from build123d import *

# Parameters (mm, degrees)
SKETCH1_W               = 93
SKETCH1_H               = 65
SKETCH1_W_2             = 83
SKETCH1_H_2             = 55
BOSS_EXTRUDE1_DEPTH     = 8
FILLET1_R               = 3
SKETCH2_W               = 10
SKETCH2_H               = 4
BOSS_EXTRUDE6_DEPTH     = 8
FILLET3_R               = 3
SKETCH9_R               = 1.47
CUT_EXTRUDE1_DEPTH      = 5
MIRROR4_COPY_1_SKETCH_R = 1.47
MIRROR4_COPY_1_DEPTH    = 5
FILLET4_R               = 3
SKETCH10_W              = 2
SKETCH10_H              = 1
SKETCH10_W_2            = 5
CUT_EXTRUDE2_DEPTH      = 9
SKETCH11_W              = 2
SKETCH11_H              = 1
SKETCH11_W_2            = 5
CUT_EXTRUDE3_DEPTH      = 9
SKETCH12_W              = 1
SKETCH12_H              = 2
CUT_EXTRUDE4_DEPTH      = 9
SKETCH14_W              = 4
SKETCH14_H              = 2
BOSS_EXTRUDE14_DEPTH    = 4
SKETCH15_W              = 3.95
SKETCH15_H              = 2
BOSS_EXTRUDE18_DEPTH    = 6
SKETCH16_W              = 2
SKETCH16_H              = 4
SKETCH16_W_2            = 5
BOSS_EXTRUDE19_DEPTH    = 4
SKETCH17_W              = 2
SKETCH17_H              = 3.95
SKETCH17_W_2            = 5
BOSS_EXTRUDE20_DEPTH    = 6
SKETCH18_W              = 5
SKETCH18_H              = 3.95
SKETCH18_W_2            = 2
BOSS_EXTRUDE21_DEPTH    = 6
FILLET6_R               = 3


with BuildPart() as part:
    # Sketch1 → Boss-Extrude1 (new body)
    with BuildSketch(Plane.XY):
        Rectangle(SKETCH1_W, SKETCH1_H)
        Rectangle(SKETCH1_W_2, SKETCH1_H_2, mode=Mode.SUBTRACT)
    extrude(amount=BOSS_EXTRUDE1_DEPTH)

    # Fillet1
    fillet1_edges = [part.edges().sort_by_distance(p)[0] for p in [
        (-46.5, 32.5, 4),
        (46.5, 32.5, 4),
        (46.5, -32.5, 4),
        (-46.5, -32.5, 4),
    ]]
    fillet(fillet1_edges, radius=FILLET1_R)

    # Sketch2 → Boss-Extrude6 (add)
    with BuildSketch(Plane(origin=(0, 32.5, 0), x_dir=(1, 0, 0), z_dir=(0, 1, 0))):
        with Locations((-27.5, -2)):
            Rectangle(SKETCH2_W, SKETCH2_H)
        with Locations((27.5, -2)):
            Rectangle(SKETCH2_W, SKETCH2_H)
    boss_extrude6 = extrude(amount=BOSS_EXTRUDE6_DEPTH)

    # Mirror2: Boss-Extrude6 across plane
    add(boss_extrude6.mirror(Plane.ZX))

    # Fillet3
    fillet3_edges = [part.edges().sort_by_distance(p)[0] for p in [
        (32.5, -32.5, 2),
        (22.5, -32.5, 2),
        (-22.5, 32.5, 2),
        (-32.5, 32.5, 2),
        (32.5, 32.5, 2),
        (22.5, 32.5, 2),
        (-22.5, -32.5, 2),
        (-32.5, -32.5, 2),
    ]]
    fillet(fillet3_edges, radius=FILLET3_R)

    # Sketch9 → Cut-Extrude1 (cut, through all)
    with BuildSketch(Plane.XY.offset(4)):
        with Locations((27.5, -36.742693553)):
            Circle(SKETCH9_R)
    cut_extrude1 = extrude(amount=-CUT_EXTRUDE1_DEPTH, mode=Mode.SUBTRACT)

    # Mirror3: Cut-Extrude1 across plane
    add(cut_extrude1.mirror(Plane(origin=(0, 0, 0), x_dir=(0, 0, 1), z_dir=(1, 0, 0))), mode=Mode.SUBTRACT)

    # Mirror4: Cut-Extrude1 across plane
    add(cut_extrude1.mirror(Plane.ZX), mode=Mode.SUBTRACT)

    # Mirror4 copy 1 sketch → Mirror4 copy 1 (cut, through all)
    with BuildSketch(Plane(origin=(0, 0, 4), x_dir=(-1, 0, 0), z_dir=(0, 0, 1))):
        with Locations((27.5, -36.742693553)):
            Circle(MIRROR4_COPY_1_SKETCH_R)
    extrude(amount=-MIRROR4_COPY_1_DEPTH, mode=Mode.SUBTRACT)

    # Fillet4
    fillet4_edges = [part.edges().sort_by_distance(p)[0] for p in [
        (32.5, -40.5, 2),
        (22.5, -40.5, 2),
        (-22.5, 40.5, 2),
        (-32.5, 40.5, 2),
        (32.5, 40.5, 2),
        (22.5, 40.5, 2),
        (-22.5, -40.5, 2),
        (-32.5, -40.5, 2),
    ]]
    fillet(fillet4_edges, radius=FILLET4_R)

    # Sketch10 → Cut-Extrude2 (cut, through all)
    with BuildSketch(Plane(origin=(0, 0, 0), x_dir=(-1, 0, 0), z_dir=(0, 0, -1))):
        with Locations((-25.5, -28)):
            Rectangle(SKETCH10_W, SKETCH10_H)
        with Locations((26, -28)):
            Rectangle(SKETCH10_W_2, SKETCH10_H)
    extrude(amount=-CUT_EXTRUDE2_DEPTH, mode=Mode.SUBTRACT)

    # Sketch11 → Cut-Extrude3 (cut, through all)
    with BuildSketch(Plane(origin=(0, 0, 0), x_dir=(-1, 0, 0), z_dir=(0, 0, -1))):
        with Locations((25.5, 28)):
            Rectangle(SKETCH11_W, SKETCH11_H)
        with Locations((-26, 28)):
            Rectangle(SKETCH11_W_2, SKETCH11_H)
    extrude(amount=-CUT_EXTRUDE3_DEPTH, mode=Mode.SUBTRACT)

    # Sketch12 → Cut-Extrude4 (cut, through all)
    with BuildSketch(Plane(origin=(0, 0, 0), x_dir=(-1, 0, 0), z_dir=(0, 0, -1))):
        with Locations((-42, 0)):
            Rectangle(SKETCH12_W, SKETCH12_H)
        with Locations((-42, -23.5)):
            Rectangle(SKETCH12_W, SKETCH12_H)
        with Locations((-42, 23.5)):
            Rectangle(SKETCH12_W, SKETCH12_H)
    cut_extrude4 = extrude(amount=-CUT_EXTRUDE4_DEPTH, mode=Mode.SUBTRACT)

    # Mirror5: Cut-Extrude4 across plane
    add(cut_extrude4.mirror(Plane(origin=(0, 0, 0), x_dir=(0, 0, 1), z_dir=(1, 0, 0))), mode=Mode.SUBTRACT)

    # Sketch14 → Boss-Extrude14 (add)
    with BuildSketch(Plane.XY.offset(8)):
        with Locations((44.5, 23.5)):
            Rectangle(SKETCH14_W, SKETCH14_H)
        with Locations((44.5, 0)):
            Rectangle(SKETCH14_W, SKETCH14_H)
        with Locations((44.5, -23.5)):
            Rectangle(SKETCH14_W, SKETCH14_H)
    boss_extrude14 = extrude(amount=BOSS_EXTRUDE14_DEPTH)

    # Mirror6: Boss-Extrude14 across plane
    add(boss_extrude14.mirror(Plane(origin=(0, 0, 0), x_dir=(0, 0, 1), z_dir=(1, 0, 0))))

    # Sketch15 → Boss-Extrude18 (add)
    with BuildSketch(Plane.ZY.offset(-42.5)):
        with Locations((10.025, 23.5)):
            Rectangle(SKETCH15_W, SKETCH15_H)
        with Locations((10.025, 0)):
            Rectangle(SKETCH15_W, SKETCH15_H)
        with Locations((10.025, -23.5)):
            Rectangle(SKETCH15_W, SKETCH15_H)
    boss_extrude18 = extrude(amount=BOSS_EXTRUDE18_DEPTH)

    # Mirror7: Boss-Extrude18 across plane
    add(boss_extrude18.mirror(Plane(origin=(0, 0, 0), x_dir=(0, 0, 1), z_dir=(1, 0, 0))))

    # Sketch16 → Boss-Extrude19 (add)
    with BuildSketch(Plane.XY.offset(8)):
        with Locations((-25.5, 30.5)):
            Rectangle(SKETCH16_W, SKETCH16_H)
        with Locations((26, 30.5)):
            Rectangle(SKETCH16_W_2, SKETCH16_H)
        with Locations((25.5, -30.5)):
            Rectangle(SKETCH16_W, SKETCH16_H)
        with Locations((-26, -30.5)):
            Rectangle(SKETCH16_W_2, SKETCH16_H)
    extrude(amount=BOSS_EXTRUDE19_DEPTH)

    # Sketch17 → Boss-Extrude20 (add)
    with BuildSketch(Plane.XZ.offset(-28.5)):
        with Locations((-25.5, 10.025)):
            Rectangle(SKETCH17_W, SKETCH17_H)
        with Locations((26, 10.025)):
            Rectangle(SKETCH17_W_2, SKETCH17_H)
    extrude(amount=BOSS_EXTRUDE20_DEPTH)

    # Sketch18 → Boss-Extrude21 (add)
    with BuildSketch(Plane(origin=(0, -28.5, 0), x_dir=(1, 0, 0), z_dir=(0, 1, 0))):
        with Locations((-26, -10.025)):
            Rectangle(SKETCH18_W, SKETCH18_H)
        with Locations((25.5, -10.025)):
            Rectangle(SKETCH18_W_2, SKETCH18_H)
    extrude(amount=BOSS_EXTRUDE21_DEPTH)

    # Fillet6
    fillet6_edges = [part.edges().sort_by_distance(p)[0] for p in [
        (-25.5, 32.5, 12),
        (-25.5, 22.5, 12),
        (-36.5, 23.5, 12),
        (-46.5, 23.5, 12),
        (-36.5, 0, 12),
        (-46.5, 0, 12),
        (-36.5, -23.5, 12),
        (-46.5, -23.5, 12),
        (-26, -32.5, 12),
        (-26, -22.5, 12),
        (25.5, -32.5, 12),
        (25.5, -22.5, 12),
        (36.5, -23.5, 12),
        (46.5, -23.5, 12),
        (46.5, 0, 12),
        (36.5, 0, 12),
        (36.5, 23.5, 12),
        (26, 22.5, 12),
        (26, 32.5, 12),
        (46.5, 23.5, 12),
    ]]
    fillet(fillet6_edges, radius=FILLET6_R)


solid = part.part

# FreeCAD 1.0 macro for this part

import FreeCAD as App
import Part
import Sketcher
Q = App.Units.Quantity


def edges_at(feature, points):
    """Names of the edges that pass closest to the given points."""
    edges = feature.Shape.Edges
    near = lambda p: min(range(len(edges)), key=lambda i: edges[i].distToShape(Part.Vertex(*p))[0])
    return sorted({f"Edge{near(p) + 1}" for p in points})


def add_polygon(sketch, points):
    """Adds a closed chain of lines whose ends are joined by coincident constraints."""
    first, n = sketch.GeometryCount, len(points)
    for a, b in zip(points, points[1:] + points[:1]):
        sketch.addGeometry(Part.LineSegment(App.Vector(*a, 0), App.Vector(*b, 0)), False)
    for i in range(n):
        sketch.addConstraint(Sketcher.Constraint("Coincident", first + i, 2, first + (i + 1) % n, 1))

doc = App.newDocument("Part")
body = doc.addObject("PartDesign::Body", "Body")

# Sketch on XY plane
sketch1 = body.newObject("Sketcher::SketchObject", "Sketch")
sketch1.AttachmentSupport = (doc.getObject("XY_Plane"), [""])
sketch1.MapMode = "FlatFace"
add_polygon(sketch1, [(-46, 32), (-46, -32), (46, -32), (46, 32)])  # lines 0-3
add_polygon(sketch1, [(42, -28), (-42, -28), (-42, 28), (42, 28)])  # lines 4-7
sketch1.addConstraint([
    Sketcher.Constraint("Vertical", 0),
    Sketcher.Constraint("Horizontal", 1),
    Sketcher.Constraint("Vertical", 2),
    Sketcher.Constraint("Horizontal", 3),
    Sketcher.Constraint("Horizontal", 4),
    Sketcher.Constraint("Vertical", 5),
    Sketcher.Constraint("Horizontal", 6),
    Sketcher.Constraint("Vertical", 7),
    Sketcher.Constraint("Symmetric", 0, 2, 2, 2, -1, 1),
    Sketcher.Constraint("Symmetric", 4, 2, 6, 2, -1, 1),
    Sketcher.Constraint("DistanceX", 1, 1, 1, 2, Q("93 mm")),
    Sketcher.Constraint("DistanceX", 4, 2, 4, 1, Q("83 mm")),
    Sketcher.Constraint("DistanceY", 0, 2, 0, 1, Q("65 mm")),
    Sketcher.Constraint("DistanceY", 5, 1, 5, 2, Q("55 mm")),
])
pad1 = body.newObject("PartDesign::Pad", "Pad")
pad1.Profile = sketch1
pad1.Length = 8
doc.recompute()

fillet = body.newObject("PartDesign::Fillet", "Fillet")
fillet.Base = (pad1, edges_at(pad1, [
    (-46.5, 32.5, 4),
    (46.5, 32.5, 4),
    (46.5, -32.5, 4),
    (-46.5, -32.5, 4),
]))
fillet.Radius = 3

# Sketch on XZ plane
sketch2 = body.newObject("Sketcher::SketchObject", "Sketch001")
sketch2.AttachmentSupport = (doc.getObject("XZ_Plane"), [""])
sketch2.MapMode = "FlatFace"
sketch2.AttachmentOffset = App.Placement(App.Vector(0, 0, -32.5), App.Rotation())
add_polygon(sketch2, [(-32.5, 0), (-32.5, 4), (-22.5, 4), (-22.5, 0)])  # lines 0-3
add_polygon(sketch2, [(22.5, 0), (22.5, 4), (32.5, 4), (32.5, 0)])  # lines 4-7
sketch2.addConstraint([
    Sketcher.Constraint("Vertical", 0),
    Sketcher.Constraint("Horizontal", 1),
    Sketcher.Constraint("Vertical", 2),
    Sketcher.Constraint("Horizontal", 3),
    Sketcher.Constraint("Vertical", 4),
    Sketcher.Constraint("Horizontal", 5),
    Sketcher.Constraint("Vertical", 6),
    Sketcher.Constraint("Horizontal", 7),
    Sketcher.Constraint("Symmetric", 3, 2, 6, 2, -1, 1),
    Sketcher.Constraint("Symmetric", 1, 2, 4, 2, -2),
    Sketcher.Constraint("PointOnObject", 2, 2, -1),
    Sketcher.Constraint("DistanceX", 1, 1, 1, 2, Q("10 mm")),
    Sketcher.Constraint("DistanceY", 0, 1, 0, 2, Q("4 mm")),
    Sketcher.Constraint("DistanceX", 1, 2, 4, 2, Q("45 mm")),
])
pad2 = body.newObject("PartDesign::Pad", "Pad001")
pad2.Profile = sketch2
pad2.Length = 8
pad2.Reversed = True
doc.recompute()

mirrored = body.newObject("PartDesign::Mirrored", "Mirrored")
mirrored.Originals = [pad2]
mirrored.MirrorPlane = (doc.getObject("XZ_Plane"), [""])
body.Tip = mirrored
doc.recompute()

fillet2 = body.newObject("PartDesign::Fillet", "Fillet001")
fillet2.Base = (mirrored, edges_at(mirrored, [
    (32.5, -32.5, 2),
    (22.5, -32.5, 2),
    (-22.5, 32.5, 2),
    (-32.5, 32.5, 2),
    (32.5, 32.5, 2),
    (22.5, 32.5, 2),
    (-22.5, -32.5, 2),
    (-32.5, -32.5, 2),
]))
fillet2.Radius = 3

# Sketch on XY plane
sketch3 = body.newObject("Sketcher::SketchObject", "Sketch002")
sketch3.AttachmentSupport = (doc.getObject("XY_Plane"), [""])
sketch3.MapMode = "FlatFace"
sketch3.AttachmentOffset = App.Placement(App.Vector(0, 0, 4), App.Rotation())
sketch3.addGeometry(Part.Circle(App.Vector(27.5, -36.7, 0), App.Vector(0, 0, 1), 1.5), False)
sketch3.addConstraint([
    Sketcher.Constraint("Diameter", 0, Q("2.94 mm")),
    Sketcher.Constraint("DistanceX", -1, 1, 0, 3, Q("27.5 mm")),
    Sketcher.Constraint("DistanceY", 0, 3, -1, 1, Q("36.742694 mm")),
])
pocket1 = body.newObject("PartDesign::Pocket", "Pocket")
pocket1.Profile = sketch3
pocket1.Type = "ThroughAll"
doc.recompute()

mirrored2 = body.newObject("PartDesign::Mirrored", "Mirrored001")
mirrored2.Originals = [pocket1]
mirrored2.MirrorPlane = (doc.getObject("YZ_Plane"), [""])
body.Tip = mirrored2
doc.recompute()

mirrored3 = body.newObject("PartDesign::Mirrored", "Mirrored002")
mirrored3.Originals = [pocket1]
mirrored3.MirrorPlane = (doc.getObject("XZ_Plane"), [""])
body.Tip = mirrored3

# Sketch on XY plane
sketch4 = body.newObject("Sketcher::SketchObject", "Sketch003")
sketch4.AttachmentSupport = (doc.getObject("XY_Plane"), [""])
sketch4.MapMode = "FlatFace"
sketch4.AttachmentOffset = App.Placement(App.Vector(0, 0, 4), App.Rotation())
sketch4.addGeometry(Part.Circle(App.Vector(-27.5, 36.7, 0), App.Vector(0, 0, 1), 1.5), False)
sketch4.addConstraint([
    Sketcher.Constraint("Diameter", 0, Q("2.94 mm")),
    Sketcher.Constraint("DistanceX", 0, 3, -1, 1, Q("27.5 mm")),
    Sketcher.Constraint("DistanceY", -1, 1, 0, 3, Q("36.742694 mm")),
])
pocket2 = body.newObject("PartDesign::Pocket", "Pocket001")
pocket2.Profile = sketch4
pocket2.Type = "ThroughAll"
doc.recompute()

fillet3 = body.newObject("PartDesign::Fillet", "Fillet002")
fillet3.Base = (pocket2, edges_at(pocket2, [
    (32.5, -40.5, 2),
    (22.5, -40.5, 2),
    (-22.5, 40.5, 2),
    (-32.5, 40.5, 2),
    (32.5, 40.5, 2),
    (22.5, 40.5, 2),
    (-22.5, -40.5, 2),
    (-32.5, -40.5, 2),
]))
fillet3.Radius = 3

# Sketch on XY plane
sketch5 = body.newObject("Sketcher::SketchObject", "Sketch004")
sketch5.AttachmentSupport = (doc.getObject("XY_Plane"), [""])
sketch5.MapMode = "FlatFace"
add_polygon(sketch5, [(26.5, -27.5), (26.5, -28.5), (24.5, -28.5), (24.5, -27.5)])  # lines 0-3
add_polygon(sketch5, [(-23.5, -27.5), (-23.5, -28.5), (-28.5, -28.5), (-28.5, -27.5)])  # lines 4-7
sketch5.addConstraint([
    Sketcher.Constraint("Vertical", 0),
    Sketcher.Constraint("Horizontal", 1),
    Sketcher.Constraint("Vertical", 2),
    Sketcher.Constraint("Horizontal", 3),
    Sketcher.Constraint("Vertical", 4),
    Sketcher.Constraint("Horizontal", 5),
    Sketcher.Constraint("Vertical", 6),
    Sketcher.Constraint("Horizontal", 7),
    Sketcher.Constraint("Horizontal", 1, 2, 4, 2),
    Sketcher.Constraint("Horizontal", 3, 2, 6, 2),
    Sketcher.Constraint("DistanceX", 1, 2, 1, 1, Q("2 mm")),
    Sketcher.Constraint("DistanceX", 5, 2, 5, 1, Q("5 mm")),
    Sketcher.Constraint("DistanceY", 0, 2, 0, 1, Q("1 mm")),
    Sketcher.Constraint("DistanceX", 4, 2, 1, 2, Q("48 mm")),
    Sketcher.Constraint("DistanceX", -1, 1, 0, 2, Q("26.5 mm")),
    Sketcher.Constraint("DistanceY", 0, 2, -1, 1, Q("28.5 mm")),
])
pocket3 = body.newObject("PartDesign::Pocket", "Pocket002")
pocket3.Profile = sketch5
pocket3.Type = "ThroughAll"
pocket3.Reversed = True

# Sketch on XY plane
sketch6 = body.newObject("Sketcher::SketchObject", "Sketch005")
sketch6.AttachmentSupport = (doc.getObject("XY_Plane"), [""])
sketch6.MapMode = "FlatFace"
add_polygon(sketch6, [(-24.5, 28.5), (-24.5, 27.5), (-26.5, 27.5), (-26.5, 28.5)])  # lines 0-3
add_polygon(sketch6, [(28.5, 28.5), (28.5, 27.5), (23.5, 27.5), (23.5, 28.5)])  # lines 4-7
sketch6.addConstraint([
    Sketcher.Constraint("Vertical", 0),
    Sketcher.Constraint("Horizontal", 1),
    Sketcher.Constraint("Vertical", 2),
    Sketcher.Constraint("Horizontal", 3),
    Sketcher.Constraint("Vertical", 4),
    Sketcher.Constraint("Horizontal", 5),
    Sketcher.Constraint("Vertical", 6),
    Sketcher.Constraint("Horizontal", 7),
    Sketcher.Constraint("Horizontal", 1, 2, 4, 2),
    Sketcher.Constraint("Horizontal", 3, 2, 6, 2),
    Sketcher.Constraint("DistanceX", 1, 2, 1, 1, Q("2 mm")),
    Sketcher.Constraint("DistanceX", 5, 2, 5, 1, Q("5 mm")),
    Sketcher.Constraint("DistanceY", 0, 2, 0, 1, Q("1 mm")),
    Sketcher.Constraint("DistanceX", 0, 2, 4, 2, Q("53 mm")),
    Sketcher.Constraint("DistanceX", 0, 2, -1, 1, Q("24.5 mm")),
    Sketcher.Constraint("DistanceY", -1, 1, 0, 2, Q("27.5 mm")),
])
pocket4 = body.newObject("PartDesign::Pocket", "Pocket003")
pocket4.Profile = sketch6
pocket4.Type = "ThroughAll"
pocket4.Reversed = True

# Sketch on XY plane
sketch7 = body.newObject("Sketcher::SketchObject", "Sketch006")
sketch7.AttachmentSupport = (doc.getObject("XY_Plane"), [""])
sketch7.MapMode = "FlatFace"
add_polygon(sketch7, [(42.5, 1), (42.5, -1), (41.5, -1), (41.5, 1)])  # lines 0-3
add_polygon(sketch7, [(42.5, -22.5), (42.5, -24.5), (41.5, -24.5), (41.5, -22.5)])  # lines 4-7
add_polygon(sketch7, [(42.5, 24.5), (42.5, 22.5), (41.5, 22.5), (41.5, 24.5)])  # lines 8-11
sketch7.addConstraint([
    Sketcher.Constraint("Vertical", 0),
    Sketcher.Constraint("Horizontal", 1),
    Sketcher.Constraint("Vertical", 2),
    Sketcher.Constraint("Horizontal", 3),
    Sketcher.Constraint("Vertical", 4),
    Sketcher.Constraint("Horizontal", 5),
    Sketcher.Constraint("Vertical", 6),
    Sketcher.Constraint("Horizontal", 7),
    Sketcher.Constraint("Vertical", 8),
    Sketcher.Constraint("Horizontal", 9),
    Sketcher.Constraint("Vertical", 10),
    Sketcher.Constraint("Horizontal", 11),
    Sketcher.Constraint("Symmetric", 7, 2, 8, 2, -1),
    Sketcher.Constraint("Symmetric", 5, 2, 10, 2, -1),
    Sketcher.Constraint("Vertical", 3, 2, 4, 2),
    Sketcher.Constraint("Vertical", 2, 2, 5, 2),
    Sketcher.Constraint("Equal", 2, 4),
    Sketcher.Constraint("DistanceX", 1, 2, 1, 1, Q("1 mm")),
    Sketcher.Constraint("DistanceY", 0, 2, 0, 1, Q("2 mm")),
    Sketcher.Constraint("DistanceY", 0, 2, -1, 1, Q("1 mm")),
    Sketcher.Constraint("DistanceY", 7, 2, 8, 2, Q("45 mm")),
    Sketcher.Constraint("DistanceX", -1, 1, 0, 2, Q("42.5 mm")),
])
pocket5 = body.newObject("PartDesign::Pocket", "Pocket004")
pocket5.Profile = sketch7
pocket5.Type = "ThroughAll"
pocket5.Reversed = True
doc.recompute()

mirrored4 = body.newObject("PartDesign::Mirrored", "Mirrored003")
mirrored4.Originals = [pocket5]
mirrored4.MirrorPlane = (doc.getObject("YZ_Plane"), [""])
body.Tip = mirrored4

# Sketch on XY plane
sketch8 = body.newObject("Sketcher::SketchObject", "Sketch007")
sketch8.AttachmentSupport = (doc.getObject("XY_Plane"), [""])
sketch8.MapMode = "FlatFace"
sketch8.AttachmentOffset = App.Placement(App.Vector(0, 0, 8), App.Rotation())
add_polygon(sketch8, [(42.5, 24.5), (42.5, 22.5), (46.5, 22.5), (46.5, 24.5)])  # lines 0-3
add_polygon(sketch8, [(42.5, 1), (42.5, -1), (46.5, -1), (46.5, 1)])  # lines 4-7
add_polygon(sketch8, [(42.5, -22.5), (42.5, -24.5), (46.5, -24.5), (46.5, -22.5)])  # lines 8-11
sketch8.addConstraint([
    Sketcher.Constraint("Vertical", 0),
    Sketcher.Constraint("Horizontal", 1),
    Sketcher.Constraint("Vertical", 2),
    Sketcher.Constraint("Horizontal", 3),
    Sketcher.Constraint("Vertical", 4),
    Sketcher.Constraint("Horizontal", 5),
    Sketcher.Constraint("Vertical", 6),
    Sketcher.Constraint("Horizontal", 7),
    Sketcher.Constraint("Vertical", 8),
    Sketcher.Constraint("Horizontal", 9),
    Sketcher.Constraint("Vertical", 10),
    Sketcher.Constraint("Horizontal", 11),
    Sketcher.Constraint("Symmetric", 3, 2, 8, 2, -1),
    Sketcher.Constraint("Symmetric", 1, 2, 10, 2, -1),
    Sketcher.Constraint("Vertical", 3, 2, 4, 2),
    Sketcher.Constraint("Vertical", 2, 2, 5, 2),
    Sketcher.Constraint("Equal", 2, 4),
    Sketcher.Constraint("DistanceX", 1, 1, 1, 2, Q("4 mm")),
    Sketcher.Constraint("DistanceY", 0, 2, 0, 1, Q("2 mm")),
    Sketcher.Constraint("DistanceY", 4, 2, -1, 1, Q("1 mm")),
    Sketcher.Constraint("DistanceY", 8, 2, 0, 2, Q("47 mm")),
    Sketcher.Constraint("DistanceX", -1, 1, 0, 2, Q("42.5 mm")),
])
pad3 = body.newObject("PartDesign::Pad", "Pad002")
pad3.Profile = sketch8
pad3.Length = 4
doc.recompute()

mirrored5 = body.newObject("PartDesign::Mirrored", "Mirrored004")
mirrored5.Originals = [pad3]
mirrored5.MirrorPlane = (doc.getObject("YZ_Plane"), [""])
body.Tip = mirrored5

# Sketch on YZ plane
sketch9 = body.newObject("Sketcher::SketchObject", "Sketch008")
sketch9.AttachmentSupport = (doc.getObject("YZ_Plane"), [""])
sketch9.MapMode = "FlatFace"
sketch9.AttachmentOffset = App.Placement(App.Vector(0, 0, 42.5), App.Rotation())
add_polygon(sketch9, [(24.5, 8.1), (22.5, 8.1), (22.5, 12), (24.5, 12)])  # lines 0-3
add_polygon(sketch9, [(1, 8.1), (-1, 8.1), (-1, 12), (1, 12)])  # lines 4-7
add_polygon(sketch9, [(-22.5, 8.1), (-24.5, 8.1), (-24.5, 12), (-22.5, 12)])  # lines 8-11
sketch9.addConstraint([
    Sketcher.Constraint("Horizontal", 0),
    Sketcher.Constraint("Vertical", 1),
    Sketcher.Constraint("Horizontal", 2),
    Sketcher.Constraint("Vertical", 3),
    Sketcher.Constraint("Horizontal", 4),
    Sketcher.Constraint("Vertical", 5),
    Sketcher.Constraint("Horizontal", 6),
    Sketcher.Constraint("Vertical", 7),
    Sketcher.Constraint("Horizontal", 8),
    Sketcher.Constraint("Vertical", 9),
    Sketcher.Constraint("Horizontal", 10),
    Sketcher.Constraint("Vertical", 11),
    Sketcher.Constraint("Symmetric", 3, 2, 8, 2, -2),
    Sketcher.Constraint("Symmetric", 1, 2, 10, 2, -2),
    Sketcher.Constraint("Horizontal", 3, 2, 4, 2),
    Sketcher.Constraint("Horizontal", 2, 2, 5, 2),
    Sketcher.Constraint("Equal", 2, 4),
    Sketcher.Constraint("DistanceX", 0, 2, 0, 1, Q("2 mm")),
    Sketcher.Constraint("DistanceY", -1, 1, 1, 2, Q("12 mm")),
    Sketcher.Constraint("DistanceX", 4, 2, -1, 1, Q("1 mm")),
    Sketcher.Constraint("DistanceX", 8, 2, 0, 2, Q("47 mm")),
    Sketcher.Constraint("DistanceY", 1, 1, 1, 2, Q("3.95 mm")),
])
pad4 = body.newObject("PartDesign::Pad", "Pad003")
pad4.Profile = sketch9
pad4.Length = 6
pad4.Reversed = True
doc.recompute()

mirrored6 = body.newObject("PartDesign::Mirrored", "Mirrored005")
mirrored6.Originals = [pad4]
mirrored6.MirrorPlane = (doc.getObject("YZ_Plane"), [""])
body.Tip = mirrored6

# Sketch on XY plane
sketch10 = body.newObject("Sketcher::SketchObject", "Sketch009")
sketch10.AttachmentSupport = (doc.getObject("XY_Plane"), [""])
sketch10.MapMode = "FlatFace"
sketch10.AttachmentOffset = App.Placement(App.Vector(0, 0, 8), App.Rotation())
add_polygon(sketch10, [(-26.5, 32.5), (-26.5, 28.5), (-24.5, 28.5), (-24.5, 32.5)])  # lines 0-3
add_polygon(sketch10, [(23.5, 32.5), (23.5, 28.5), (28.5, 28.5), (28.5, 32.5)])  # lines 4-7
add_polygon(sketch10, [(24.5, -28.5), (24.5, -32.5), (26.5, -32.5), (26.5, -28.5)])  # lines 8-11
add_polygon(sketch10, [(-28.5, -28.5), (-28.5, -32.5), (-23.5, -32.5), (-23.5, -28.5)])  # lines 12-15
sketch10.addConstraint([
    Sketcher.Constraint("Vertical", 0),
    Sketcher.Constraint("Horizontal", 1),
    Sketcher.Constraint("Vertical", 2),
    Sketcher.Constraint("Horizontal", 3),
    Sketcher.Constraint("Vertical", 4),
    Sketcher.Constraint("Horizontal", 5),
    Sketcher.Constraint("Vertical", 6),
    Sketcher.Constraint("Horizontal", 7),
    Sketcher.Constraint("Vertical", 8),
    Sketcher.Constraint("Horizontal", 9),
    Sketcher.Constraint("Vertical", 10),
    Sketcher.Constraint("Horizontal", 11),
    Sketcher.Constraint("Vertical", 12),
    Sketcher.Constraint("Horizontal", 13),
    Sketcher.Constraint("Vertical", 14),
    Sketcher.Constraint("Horizontal", 15),
    Sketcher.Constraint("Symmetric", 2, 2, 8, 2, -1, 1),
    Sketcher.Constraint("Symmetric", 0, 2, 10, 2, -1, 1),
    Sketcher.Constraint("Symmetric", 6, 2, 12, 2, -1, 1),
    Sketcher.Constraint("Symmetric", 4, 2, 14, 2, -1, 1),
    Sketcher.Constraint("Horizontal", 1, 2, 4, 2),
    Sketcher.Constraint("Horizontal", 3, 2, 6, 2),
    Sketcher.Constraint("DistanceX", 1, 1, 1, 2, Q("2 mm")),
    Sketcher.Constraint("DistanceX", 5, 1, 5, 2, Q("5 mm")),
    Sketcher.Constraint("DistanceY", 0, 2, 0, 1, Q("4 mm")),
    Sketcher.Constraint("DistanceX", 1, 2, 4, 2, Q("48 mm")),
    Sketcher.Constraint("DistanceX", 4, 2, 8, 2, Q("1 mm")),
    Sketcher.Constraint("DistanceY", 8, 2, 4, 2, Q("61 mm")),
])
pad5 = body.newObject("PartDesign::Pad", "Pad004")
pad5.Profile = sketch10
pad5.Length = 4

# Sketch on XZ plane
sketch11 = body.newObject("Sketcher::SketchObject", "Sketch010")
sketch11.AttachmentSupport = (doc.getObject("XZ_Plane"), [""])
sketch11.MapMode = "FlatFace"
sketch11.AttachmentOffset = App.Placement(App.Vector(0, 0, -28.5), App.Rotation())
add_polygon(sketch11, [(-26.5, 12), (-26.5, 8.1), (-24.5, 8.1), (-24.5, 12)])  # lines 0-3
add_polygon(sketch11, [(23.5, 12), (23.5, 8.1), (28.5, 8.1), (28.5, 12)])  # lines 4-7
sketch11.addConstraint([
    Sketcher.Constraint("Vertical", 0),
    Sketcher.Constraint("Horizontal", 1),
    Sketcher.Constraint("Vertical", 2),
    Sketcher.Constraint("Horizontal", 3),
    Sketcher.Constraint("Vertical", 4),
    Sketcher.Constraint("Horizontal", 5),
    Sketcher.Constraint("Vertical", 6),
    Sketcher.Constraint("Horizontal", 7),
    Sketcher.Constraint("Horizontal", 1, 2, 4, 2),
    Sketcher.Constraint("Horizontal", 3, 2, 6, 2),
    Sketcher.Constraint("DistanceX", 1, 1, 1, 2, Q("2 mm")),
    Sketcher.Constraint("DistanceX", 5, 1, 5, 2, Q("5 mm")),
    Sketcher.Constraint("DistanceY", -1, 1, 2, 2, Q("12 mm")),
    Sketcher.Constraint("DistanceX", 1, 2, 4, 2, Q("48 mm")),
    Sketcher.Constraint("DistanceY", 0, 2, 0, 1, Q("3.95 mm")),
    Sketcher.Constraint("DistanceX", 0, 2, -1, 1, Q("26.5 mm")),
])
pad6 = body.newObject("PartDesign::Pad", "Pad005")
pad6.Profile = sketch11
pad6.Length = 6

# Sketch on XZ plane
sketch12 = body.newObject("Sketcher::SketchObject", "Sketch011")
sketch12.AttachmentSupport = (doc.getObject("XZ_Plane"), [""])
sketch12.MapMode = "FlatFace"
sketch12.AttachmentOffset = App.Placement(App.Vector(0, 0, 28.5), App.Rotation())
add_polygon(sketch12, [(-28.5, 8.1), (-28.5, 12), (-23.5, 12), (-23.5, 8.1)])  # lines 0-3
add_polygon(sketch12, [(24.5, 8.1), (24.5, 12), (26.5, 12), (26.5, 8.1)])  # lines 4-7
sketch12.addConstraint([
    Sketcher.Constraint("Vertical", 0),
    Sketcher.Constraint("Horizontal", 1),
    Sketcher.Constraint("Vertical", 2),
    Sketcher.Constraint("Horizontal", 3),
    Sketcher.Constraint("Vertical", 4),
    Sketcher.Constraint("Horizontal", 5),
    Sketcher.Constraint("Vertical", 6),
    Sketcher.Constraint("Horizontal", 7),
    Sketcher.Constraint("Horizontal", 1, 2, 4, 2),
    Sketcher.Constraint("Horizontal", 3, 2, 6, 2),
    Sketcher.Constraint("DistanceX", 1, 1, 1, 2, Q("5 mm")),
    Sketcher.Constraint("DistanceX", 5, 1, 5, 2, Q("2 mm")),
    Sketcher.Constraint("DistanceY", -1, 1, 0, 2, Q("12 mm")),
    Sketcher.Constraint("DistanceX", 1, 2, 4, 2, Q("48 mm")),
    Sketcher.Constraint("DistanceY", 0, 1, 0, 2, Q("3.95 mm")),
    Sketcher.Constraint("DistanceX", 0, 2, -1, 1, Q("28.5 mm")),
])
pad7 = body.newObject("PartDesign::Pad", "Pad006")
pad7.Profile = sketch12
pad7.Length = 6
pad7.Reversed = True
doc.recompute()

fillet4 = body.newObject("PartDesign::Fillet", "Fillet003")
fillet4.Base = (pad7, edges_at(pad7, [
    (-25.5, 32.5, 12),
    (-25.5, 22.5, 12),
    (-36.5, 23.5, 12),
    (-46.5, 23.5, 12),
    (-36.5, 0, 12),
    (-46.5, 0, 12),
    (-36.5, -23.5, 12),
    (-46.5, -23.5, 12),
    (-26, -32.5, 12),
    (-26, -22.5, 12),
    (25.5, -32.5, 12),
    (25.5, -22.5, 12),
    (36.5, -23.5, 12),
    (46.5, -23.5, 12),
    (46.5, 0, 12),
    (36.5, 0, 12),
    (36.5, 23.5, 12),
    (26, 22.5, 12),
    (26, 32.5, 12),
    (46.5, 23.5, 12),
]))
fillet4.Radius = 3

doc.recompute()
